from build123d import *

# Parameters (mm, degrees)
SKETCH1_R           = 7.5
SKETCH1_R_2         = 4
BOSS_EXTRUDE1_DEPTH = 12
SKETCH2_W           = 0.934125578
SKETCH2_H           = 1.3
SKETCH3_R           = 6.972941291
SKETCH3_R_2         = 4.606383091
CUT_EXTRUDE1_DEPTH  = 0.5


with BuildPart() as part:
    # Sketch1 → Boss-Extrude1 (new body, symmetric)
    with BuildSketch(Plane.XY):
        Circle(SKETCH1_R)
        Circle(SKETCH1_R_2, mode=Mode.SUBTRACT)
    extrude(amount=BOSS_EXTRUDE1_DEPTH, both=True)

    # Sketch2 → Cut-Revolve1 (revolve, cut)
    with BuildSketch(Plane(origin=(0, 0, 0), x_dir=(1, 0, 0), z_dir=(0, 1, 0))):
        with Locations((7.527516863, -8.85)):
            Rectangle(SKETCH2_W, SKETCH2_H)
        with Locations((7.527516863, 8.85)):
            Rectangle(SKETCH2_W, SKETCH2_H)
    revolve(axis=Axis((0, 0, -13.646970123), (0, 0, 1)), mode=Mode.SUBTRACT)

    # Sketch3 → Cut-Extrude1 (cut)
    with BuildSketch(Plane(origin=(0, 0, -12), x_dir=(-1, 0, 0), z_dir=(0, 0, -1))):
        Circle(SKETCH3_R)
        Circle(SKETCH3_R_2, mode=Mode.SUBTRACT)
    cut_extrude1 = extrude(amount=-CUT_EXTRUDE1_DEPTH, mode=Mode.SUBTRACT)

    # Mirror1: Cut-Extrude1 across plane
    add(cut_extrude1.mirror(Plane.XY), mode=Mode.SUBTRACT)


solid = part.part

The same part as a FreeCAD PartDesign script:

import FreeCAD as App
import Part
import Sketcher
Q = App.Units.Quantity

doc = App.newDocument("Part")
body = doc.addObject("PartDesign::Body", "Body")

sketch1 = body.newObject("Sketcher::SketchObject", "Sketch")
sketch1.AttachmentSupport = (doc.getObject("XY_Plane"), [""])
sketch1.MapMode = "FlatFace"
sketch1.addGeometry([
    Part.Circle(App.Vector(0, 0, 0), App.Vector(0, 0, 1), 7.5),
    Part.Circle(App.Vector(0, 0, 0), App.Vector(0, 0, 1), 4),
], False)
sketch1.addConstraint([
    Sketcher.Constraint("Coincident", 0, 3, -1, 1),
    Sketcher.Constraint("Coincident", 1, 3, -1, 1),
    Sketcher.Constraint("Diameter", 0, Q("15 mm")),
    Sketcher.Constraint("Diameter", 1, Q("8 mm")),
])
pad1 = body.newObject("PartDesign::Pad", "Pad")
pad1.Profile = sketch1
pad1.Length = 24
pad1.Midplane = True

sketch2 = body.newObject("Sketcher::SketchObject", "Sketch001")
sketch2.AttachmentSupport = (doc.getObject("XZ_Plane"), [""])
sketch2.MapMode = "FlatFace"
sketch2.addGeometry([
    Part.LineSegment(App.Vector(7.060454, 8.2, 0), App.Vector(7.060454, 9.5, 0)),
    Part.LineSegment(App.Vector(7.060454, 9.5, 0), App.Vector(7.99458, 9.5, 0)),
    Part.LineSegment(App.Vector(7.99458, 9.5, 0), App.Vector(7.99458, 8.2, 0)),
    Part.LineSegment(App.Vector(7.99458, 8.2, 0), App.Vector(7.060454, 8.2, 0)),
    Part.LineSegment(App.Vector(7.060454, -9.5, 0), App.Vector(7.060454, -8.2, 0)),
    Part.LineSegment(App.Vector(7.060454, -8.2, 0), App.Vector(7.99458, -8.2, 0)),
    Part.LineSegment(App.Vector(7.99458, -8.2, 0), App.Vector(7.99458, -9.5, 0)),
    Part.LineSegment(App.Vector(7.99458, -9.5, 0), App.Vector(7.060454, -9.5, 0)),
], False)
sketch2.addConstraint([
    Sketcher.Constraint("Coincident", 0, 2, 1, 1),
    Sketcher.Constraint("Coincident", 1, 2, 2, 1),
    Sketcher.Constraint("Coincident", 2, 2, 3, 1),
    Sketcher.Constraint("Coincident", 3, 2, 0, 1),
    Sketcher.Constraint("Coincident", 4, 2, 5, 1),
    Sketcher.Constraint("Coincident", 5, 2, 6, 1),
    Sketcher.Constraint("Coincident", 6, 2, 7, 1),
    Sketcher.Constraint("Coincident", 7, 2, 4, 1),
    Sketcher.Constraint("Vertical", 0),
    Sketcher.Constraint("Horizontal", 1),
    Sketcher.Constraint("Vertical", 2),
    Sketcher.Constraint("Horizontal", 3),
    Sketcher.Constraint("Vertical", 4),
    Sketcher.Constraint("Horizontal", 5),
    Sketcher.Constraint("Vertical", 6),
    Sketcher.Constraint("Horizontal", 7),
    Sketcher.Constraint("Symmetric", 3, 2, 4, 2, -1),
    Sketcher.Constraint("Symmetric", 1, 2, 6, 2, -1),
    Sketcher.Constraint("DistanceY", 0, 1, 0, 2, Q("1.3 mm")),
    Sketcher.Constraint("DistanceY", 6, 2, 1, 2, Q("19 mm")),
    Sketcher.Constraint("DistanceX", 1, 1, 1, 2, Q("0.934126 mm")),
    Sketcher.Constraint("DistanceX", -1, 1, 1, 2, Q("7.99458 mm")),
])
groove = body.newObject("PartDesign::Groove", "Groove")
groove.Profile = sketch2
groove.ReferenceAxis = (sketch2, ["V_Axis"])
groove.Angle = 360

sketch3 = body.newObject("Sketcher::SketchObject", "Sketch002")
sketch3.AttachmentSupport = (doc.getObject("XY_Plane"), [""])
sketch3.MapMode = "FlatFace"
sketch3.AttachmentOffset = App.Placement(App.Vector(0, 0, -12), App.Rotation())
sketch3.addGeometry([
    Part.Circle(App.Vector(0, 0, 0), App.Vector(0, 0, 1), 6.972941),
    Part.Circle(App.Vector(0, 0, 0), App.Vector(0, 0, 1), 4.606383),
], False)
sketch3.addConstraint([
    Sketcher.Constraint("Coincident", 0, 3, -1, 1),
    Sketcher.Constraint("Coincident", 1, 3, -1, 1),
    Sketcher.Constraint("Diameter", 0, Q("13.945883 mm")),
    Sketcher.Constraint("Diameter", 1, Q("9.212766 mm")),
])
pocket1 = body.newObject("PartDesign::Pocket", "Pocket")
pocket1.Profile = sketch3
pocket1.Length = 0.5
pocket1.Reversed = True
doc.recompute()

mirrored = body.newObject("PartDesign::Mirrored", "Mirrored")
mirrored.Originals = [pocket1]
mirrored.MirrorPlane = (doc.getObject("XY_Plane"), [""])
body.Tip = mirrored

doc.recompute()
